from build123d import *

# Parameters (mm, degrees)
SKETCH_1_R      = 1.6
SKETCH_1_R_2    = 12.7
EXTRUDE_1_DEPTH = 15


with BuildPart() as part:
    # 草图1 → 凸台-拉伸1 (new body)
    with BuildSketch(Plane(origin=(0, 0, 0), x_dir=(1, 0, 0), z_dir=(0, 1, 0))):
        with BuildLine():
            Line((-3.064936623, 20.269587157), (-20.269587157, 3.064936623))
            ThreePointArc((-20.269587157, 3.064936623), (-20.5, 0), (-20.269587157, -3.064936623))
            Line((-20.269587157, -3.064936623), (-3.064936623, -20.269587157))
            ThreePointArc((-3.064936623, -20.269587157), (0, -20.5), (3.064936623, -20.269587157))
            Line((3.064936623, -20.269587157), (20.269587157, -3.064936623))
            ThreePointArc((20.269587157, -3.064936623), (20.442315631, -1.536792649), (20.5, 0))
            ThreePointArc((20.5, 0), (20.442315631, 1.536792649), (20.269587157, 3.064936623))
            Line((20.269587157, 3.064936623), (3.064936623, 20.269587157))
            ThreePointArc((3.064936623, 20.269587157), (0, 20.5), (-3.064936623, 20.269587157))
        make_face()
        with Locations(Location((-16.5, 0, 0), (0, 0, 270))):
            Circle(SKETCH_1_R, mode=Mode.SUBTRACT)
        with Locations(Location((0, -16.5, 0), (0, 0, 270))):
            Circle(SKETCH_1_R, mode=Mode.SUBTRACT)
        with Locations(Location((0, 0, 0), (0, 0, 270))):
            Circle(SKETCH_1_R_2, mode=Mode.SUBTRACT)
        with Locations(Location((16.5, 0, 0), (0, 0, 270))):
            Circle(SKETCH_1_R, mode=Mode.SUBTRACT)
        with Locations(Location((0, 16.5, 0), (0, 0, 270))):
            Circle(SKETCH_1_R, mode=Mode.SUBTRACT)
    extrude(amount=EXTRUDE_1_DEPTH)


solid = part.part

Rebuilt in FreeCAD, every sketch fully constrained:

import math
import FreeCAD as App
import Part
import Sketcher

doc = App.newDocument("Part")
body = doc.addObject("PartDesign::Body", "Body")

sketch1 = body.newObject("Sketcher::SketchObject", "Sketch")
sketch1.AttachmentSupport = (doc.getObject("XZ_Plane"), [""])
sketch1.MapMode = "FlatFace"
sketch1.addGeometry([
    Part.LineSegment(App.Vector(-3.1, -20.3, 0), App.Vector(-20.3, -3.1, 0)),
    Part.ArcOfCircle(Part.Circle(App.Vector(0, 0, 0), App.Vector(0, 0, 1), 20.5), math.radians(171.4), math.radians(188.6)),
    Part.LineSegment(App.Vector(-20.3, 3.1, 0), App.Vector(-3.1, 20.3, 0)),
    Part.ArcOfCircle(Part.Circle(App.Vector(0, 0, 0), App.Vector(0, 0, 1), 20.5), math.radians(81.4), math.radians(98.6)),
    Part.LineSegment(App.Vector(3.1, 20.3, 0), App.Vector(20.3, 3.1, 0)),
    Part.ArcOfCircle(Part.Circle(App.Vector(0, 0, 0), App.Vector(0, 0, 1), 20.5), math.radians(0), math.radians(8.6)),
    Part.ArcOfCircle(Part.Circle(App.Vector(0, 0, 0), App.Vector(0, 0, 1), 20.5), math.radians(-8.6), math.radians(0)),
    Part.LineSegment(App.Vector(20.3, -3.1, 0), App.Vector(3.1, -20.3, 0)),
    Part.ArcOfCircle(Part.Circle(App.Vector(0, 0, 0), App.Vector(0, 0, 1), 20.5), math.radians(-98.6), math.radians(-81.4)),
    Part.Circle(App.Vector(0, 16.5, 0), App.Vector(0, 0, 1), 1.6),
    Part.Circle(App.Vector(-16.5, 0, 0), App.Vector(0, 0, 1), 1.6),
    Part.Circle(App.Vector(0, 0, 0), App.Vector(0, 0, 1), 12.7),
    Part.Circle(App.Vector(16.5, 0, 0), App.Vector(0, 0, 1), 1.6),
    Part.Circle(App.Vector(0, -16.5, 0), App.Vector(0, 0, 1), 1.6),
], False)
sketch1.addConstraint([
    Sketcher.Constraint("Coincident", 0, 2, 1, 2),
    Sketcher.Constraint("Coincident", 1, 1, 2, 1),
    Sketcher.Constraint("Coincident", 2, 2, 3, 2),
    Sketcher.Constraint("Coincident", 3, 1, 4, 1),
    Sketcher.Constraint("Coincident", 4, 2, 5, 2),
    Sketcher.Constraint("Tangent", 5, 1, 6, 2),
    Sketcher.Constraint("Coincident", 6, 1, 7, 1),
    Sketcher.Constraint("Coincident", 7, 2, 8, 2),
    Sketcher.Constraint("Coincident", 8, 1, 0, 1),
    Sketcher.Constraint("Coincident", 1, 3, -1, 1),
    Sketcher.Constraint("Coincident", 3, 3, -1, 1),
    Sketcher.Constraint("Coincident", 5, 3, -1, 1),
    Sketcher.Constraint("Coincident", 8, 3, -1, 1),
    Sketcher.Constraint("Coincident", 11, 3, -1, 1),
    Sketcher.Constraint("Equal", 1, 3),
    Sketcher.Constraint("Equal", 3, 5),
    Sketcher.Constraint("Equal", 5, 6),
    Sketcher.Constraint("Equal", 6, 8),
    Sketcher.Constraint("Equal", 9, 10),
    Sketcher.Constraint("Equal", 10, 12),
    Sketcher.Constraint("Equal", 12, 13),
    Sketcher.Constraint("Symmetric", 10, 3, 12, 3, -1, 1),
    Sketcher.Constraint("Symmetric", 9, 3, 13, 3, -1, 1),
    Sketcher.Constraint("PointOnObject", 9, 3, -2),
    Sketcher.Constraint("PointOnObject", 10, 3, -1),
    Sketcher.Constraint("PointOnObject", 5, 1, -1),
    Sketcher.Constraint("Perpendicular", 0, 2),
    Sketcher.Constraint("Perpendicular", 2, 4),
    Sketcher.Constraint("Perpendicular", 4, 7),
    Sketcher.Constraint("Horizontal", 2, 2, 3, 1),
    Sketcher.Constraint("Horizontal", 1, 1, 4, 2),
    Sketcher.Constraint("Horizontal", 0, 2, 6, 1),
    Sketcher.Constraint("Vertical", 0, 2, 1, 1),
    Sketcher.Constraint("Diameter", 9, 3.2),
    Sketcher.Constraint("Diameter", 11, 25.4),
    Sketcher.Constraint("Radius", 1, 20.5),
    Sketcher.Constraint("DistanceX", 12, 3, 5, 1, 4.0),
    Sketcher.Constraint("DistanceY", -1, 1, 9, 3, 16.5),
    Sketcher.Constraint("Distance", 0, 24.33105),
])
pad1 = body.newObject("PartDesign::Pad", "Pad")
pad1.Profile = sketch1
pad1.Length = 15
pad1.Reversed = True

doc.recompute()
